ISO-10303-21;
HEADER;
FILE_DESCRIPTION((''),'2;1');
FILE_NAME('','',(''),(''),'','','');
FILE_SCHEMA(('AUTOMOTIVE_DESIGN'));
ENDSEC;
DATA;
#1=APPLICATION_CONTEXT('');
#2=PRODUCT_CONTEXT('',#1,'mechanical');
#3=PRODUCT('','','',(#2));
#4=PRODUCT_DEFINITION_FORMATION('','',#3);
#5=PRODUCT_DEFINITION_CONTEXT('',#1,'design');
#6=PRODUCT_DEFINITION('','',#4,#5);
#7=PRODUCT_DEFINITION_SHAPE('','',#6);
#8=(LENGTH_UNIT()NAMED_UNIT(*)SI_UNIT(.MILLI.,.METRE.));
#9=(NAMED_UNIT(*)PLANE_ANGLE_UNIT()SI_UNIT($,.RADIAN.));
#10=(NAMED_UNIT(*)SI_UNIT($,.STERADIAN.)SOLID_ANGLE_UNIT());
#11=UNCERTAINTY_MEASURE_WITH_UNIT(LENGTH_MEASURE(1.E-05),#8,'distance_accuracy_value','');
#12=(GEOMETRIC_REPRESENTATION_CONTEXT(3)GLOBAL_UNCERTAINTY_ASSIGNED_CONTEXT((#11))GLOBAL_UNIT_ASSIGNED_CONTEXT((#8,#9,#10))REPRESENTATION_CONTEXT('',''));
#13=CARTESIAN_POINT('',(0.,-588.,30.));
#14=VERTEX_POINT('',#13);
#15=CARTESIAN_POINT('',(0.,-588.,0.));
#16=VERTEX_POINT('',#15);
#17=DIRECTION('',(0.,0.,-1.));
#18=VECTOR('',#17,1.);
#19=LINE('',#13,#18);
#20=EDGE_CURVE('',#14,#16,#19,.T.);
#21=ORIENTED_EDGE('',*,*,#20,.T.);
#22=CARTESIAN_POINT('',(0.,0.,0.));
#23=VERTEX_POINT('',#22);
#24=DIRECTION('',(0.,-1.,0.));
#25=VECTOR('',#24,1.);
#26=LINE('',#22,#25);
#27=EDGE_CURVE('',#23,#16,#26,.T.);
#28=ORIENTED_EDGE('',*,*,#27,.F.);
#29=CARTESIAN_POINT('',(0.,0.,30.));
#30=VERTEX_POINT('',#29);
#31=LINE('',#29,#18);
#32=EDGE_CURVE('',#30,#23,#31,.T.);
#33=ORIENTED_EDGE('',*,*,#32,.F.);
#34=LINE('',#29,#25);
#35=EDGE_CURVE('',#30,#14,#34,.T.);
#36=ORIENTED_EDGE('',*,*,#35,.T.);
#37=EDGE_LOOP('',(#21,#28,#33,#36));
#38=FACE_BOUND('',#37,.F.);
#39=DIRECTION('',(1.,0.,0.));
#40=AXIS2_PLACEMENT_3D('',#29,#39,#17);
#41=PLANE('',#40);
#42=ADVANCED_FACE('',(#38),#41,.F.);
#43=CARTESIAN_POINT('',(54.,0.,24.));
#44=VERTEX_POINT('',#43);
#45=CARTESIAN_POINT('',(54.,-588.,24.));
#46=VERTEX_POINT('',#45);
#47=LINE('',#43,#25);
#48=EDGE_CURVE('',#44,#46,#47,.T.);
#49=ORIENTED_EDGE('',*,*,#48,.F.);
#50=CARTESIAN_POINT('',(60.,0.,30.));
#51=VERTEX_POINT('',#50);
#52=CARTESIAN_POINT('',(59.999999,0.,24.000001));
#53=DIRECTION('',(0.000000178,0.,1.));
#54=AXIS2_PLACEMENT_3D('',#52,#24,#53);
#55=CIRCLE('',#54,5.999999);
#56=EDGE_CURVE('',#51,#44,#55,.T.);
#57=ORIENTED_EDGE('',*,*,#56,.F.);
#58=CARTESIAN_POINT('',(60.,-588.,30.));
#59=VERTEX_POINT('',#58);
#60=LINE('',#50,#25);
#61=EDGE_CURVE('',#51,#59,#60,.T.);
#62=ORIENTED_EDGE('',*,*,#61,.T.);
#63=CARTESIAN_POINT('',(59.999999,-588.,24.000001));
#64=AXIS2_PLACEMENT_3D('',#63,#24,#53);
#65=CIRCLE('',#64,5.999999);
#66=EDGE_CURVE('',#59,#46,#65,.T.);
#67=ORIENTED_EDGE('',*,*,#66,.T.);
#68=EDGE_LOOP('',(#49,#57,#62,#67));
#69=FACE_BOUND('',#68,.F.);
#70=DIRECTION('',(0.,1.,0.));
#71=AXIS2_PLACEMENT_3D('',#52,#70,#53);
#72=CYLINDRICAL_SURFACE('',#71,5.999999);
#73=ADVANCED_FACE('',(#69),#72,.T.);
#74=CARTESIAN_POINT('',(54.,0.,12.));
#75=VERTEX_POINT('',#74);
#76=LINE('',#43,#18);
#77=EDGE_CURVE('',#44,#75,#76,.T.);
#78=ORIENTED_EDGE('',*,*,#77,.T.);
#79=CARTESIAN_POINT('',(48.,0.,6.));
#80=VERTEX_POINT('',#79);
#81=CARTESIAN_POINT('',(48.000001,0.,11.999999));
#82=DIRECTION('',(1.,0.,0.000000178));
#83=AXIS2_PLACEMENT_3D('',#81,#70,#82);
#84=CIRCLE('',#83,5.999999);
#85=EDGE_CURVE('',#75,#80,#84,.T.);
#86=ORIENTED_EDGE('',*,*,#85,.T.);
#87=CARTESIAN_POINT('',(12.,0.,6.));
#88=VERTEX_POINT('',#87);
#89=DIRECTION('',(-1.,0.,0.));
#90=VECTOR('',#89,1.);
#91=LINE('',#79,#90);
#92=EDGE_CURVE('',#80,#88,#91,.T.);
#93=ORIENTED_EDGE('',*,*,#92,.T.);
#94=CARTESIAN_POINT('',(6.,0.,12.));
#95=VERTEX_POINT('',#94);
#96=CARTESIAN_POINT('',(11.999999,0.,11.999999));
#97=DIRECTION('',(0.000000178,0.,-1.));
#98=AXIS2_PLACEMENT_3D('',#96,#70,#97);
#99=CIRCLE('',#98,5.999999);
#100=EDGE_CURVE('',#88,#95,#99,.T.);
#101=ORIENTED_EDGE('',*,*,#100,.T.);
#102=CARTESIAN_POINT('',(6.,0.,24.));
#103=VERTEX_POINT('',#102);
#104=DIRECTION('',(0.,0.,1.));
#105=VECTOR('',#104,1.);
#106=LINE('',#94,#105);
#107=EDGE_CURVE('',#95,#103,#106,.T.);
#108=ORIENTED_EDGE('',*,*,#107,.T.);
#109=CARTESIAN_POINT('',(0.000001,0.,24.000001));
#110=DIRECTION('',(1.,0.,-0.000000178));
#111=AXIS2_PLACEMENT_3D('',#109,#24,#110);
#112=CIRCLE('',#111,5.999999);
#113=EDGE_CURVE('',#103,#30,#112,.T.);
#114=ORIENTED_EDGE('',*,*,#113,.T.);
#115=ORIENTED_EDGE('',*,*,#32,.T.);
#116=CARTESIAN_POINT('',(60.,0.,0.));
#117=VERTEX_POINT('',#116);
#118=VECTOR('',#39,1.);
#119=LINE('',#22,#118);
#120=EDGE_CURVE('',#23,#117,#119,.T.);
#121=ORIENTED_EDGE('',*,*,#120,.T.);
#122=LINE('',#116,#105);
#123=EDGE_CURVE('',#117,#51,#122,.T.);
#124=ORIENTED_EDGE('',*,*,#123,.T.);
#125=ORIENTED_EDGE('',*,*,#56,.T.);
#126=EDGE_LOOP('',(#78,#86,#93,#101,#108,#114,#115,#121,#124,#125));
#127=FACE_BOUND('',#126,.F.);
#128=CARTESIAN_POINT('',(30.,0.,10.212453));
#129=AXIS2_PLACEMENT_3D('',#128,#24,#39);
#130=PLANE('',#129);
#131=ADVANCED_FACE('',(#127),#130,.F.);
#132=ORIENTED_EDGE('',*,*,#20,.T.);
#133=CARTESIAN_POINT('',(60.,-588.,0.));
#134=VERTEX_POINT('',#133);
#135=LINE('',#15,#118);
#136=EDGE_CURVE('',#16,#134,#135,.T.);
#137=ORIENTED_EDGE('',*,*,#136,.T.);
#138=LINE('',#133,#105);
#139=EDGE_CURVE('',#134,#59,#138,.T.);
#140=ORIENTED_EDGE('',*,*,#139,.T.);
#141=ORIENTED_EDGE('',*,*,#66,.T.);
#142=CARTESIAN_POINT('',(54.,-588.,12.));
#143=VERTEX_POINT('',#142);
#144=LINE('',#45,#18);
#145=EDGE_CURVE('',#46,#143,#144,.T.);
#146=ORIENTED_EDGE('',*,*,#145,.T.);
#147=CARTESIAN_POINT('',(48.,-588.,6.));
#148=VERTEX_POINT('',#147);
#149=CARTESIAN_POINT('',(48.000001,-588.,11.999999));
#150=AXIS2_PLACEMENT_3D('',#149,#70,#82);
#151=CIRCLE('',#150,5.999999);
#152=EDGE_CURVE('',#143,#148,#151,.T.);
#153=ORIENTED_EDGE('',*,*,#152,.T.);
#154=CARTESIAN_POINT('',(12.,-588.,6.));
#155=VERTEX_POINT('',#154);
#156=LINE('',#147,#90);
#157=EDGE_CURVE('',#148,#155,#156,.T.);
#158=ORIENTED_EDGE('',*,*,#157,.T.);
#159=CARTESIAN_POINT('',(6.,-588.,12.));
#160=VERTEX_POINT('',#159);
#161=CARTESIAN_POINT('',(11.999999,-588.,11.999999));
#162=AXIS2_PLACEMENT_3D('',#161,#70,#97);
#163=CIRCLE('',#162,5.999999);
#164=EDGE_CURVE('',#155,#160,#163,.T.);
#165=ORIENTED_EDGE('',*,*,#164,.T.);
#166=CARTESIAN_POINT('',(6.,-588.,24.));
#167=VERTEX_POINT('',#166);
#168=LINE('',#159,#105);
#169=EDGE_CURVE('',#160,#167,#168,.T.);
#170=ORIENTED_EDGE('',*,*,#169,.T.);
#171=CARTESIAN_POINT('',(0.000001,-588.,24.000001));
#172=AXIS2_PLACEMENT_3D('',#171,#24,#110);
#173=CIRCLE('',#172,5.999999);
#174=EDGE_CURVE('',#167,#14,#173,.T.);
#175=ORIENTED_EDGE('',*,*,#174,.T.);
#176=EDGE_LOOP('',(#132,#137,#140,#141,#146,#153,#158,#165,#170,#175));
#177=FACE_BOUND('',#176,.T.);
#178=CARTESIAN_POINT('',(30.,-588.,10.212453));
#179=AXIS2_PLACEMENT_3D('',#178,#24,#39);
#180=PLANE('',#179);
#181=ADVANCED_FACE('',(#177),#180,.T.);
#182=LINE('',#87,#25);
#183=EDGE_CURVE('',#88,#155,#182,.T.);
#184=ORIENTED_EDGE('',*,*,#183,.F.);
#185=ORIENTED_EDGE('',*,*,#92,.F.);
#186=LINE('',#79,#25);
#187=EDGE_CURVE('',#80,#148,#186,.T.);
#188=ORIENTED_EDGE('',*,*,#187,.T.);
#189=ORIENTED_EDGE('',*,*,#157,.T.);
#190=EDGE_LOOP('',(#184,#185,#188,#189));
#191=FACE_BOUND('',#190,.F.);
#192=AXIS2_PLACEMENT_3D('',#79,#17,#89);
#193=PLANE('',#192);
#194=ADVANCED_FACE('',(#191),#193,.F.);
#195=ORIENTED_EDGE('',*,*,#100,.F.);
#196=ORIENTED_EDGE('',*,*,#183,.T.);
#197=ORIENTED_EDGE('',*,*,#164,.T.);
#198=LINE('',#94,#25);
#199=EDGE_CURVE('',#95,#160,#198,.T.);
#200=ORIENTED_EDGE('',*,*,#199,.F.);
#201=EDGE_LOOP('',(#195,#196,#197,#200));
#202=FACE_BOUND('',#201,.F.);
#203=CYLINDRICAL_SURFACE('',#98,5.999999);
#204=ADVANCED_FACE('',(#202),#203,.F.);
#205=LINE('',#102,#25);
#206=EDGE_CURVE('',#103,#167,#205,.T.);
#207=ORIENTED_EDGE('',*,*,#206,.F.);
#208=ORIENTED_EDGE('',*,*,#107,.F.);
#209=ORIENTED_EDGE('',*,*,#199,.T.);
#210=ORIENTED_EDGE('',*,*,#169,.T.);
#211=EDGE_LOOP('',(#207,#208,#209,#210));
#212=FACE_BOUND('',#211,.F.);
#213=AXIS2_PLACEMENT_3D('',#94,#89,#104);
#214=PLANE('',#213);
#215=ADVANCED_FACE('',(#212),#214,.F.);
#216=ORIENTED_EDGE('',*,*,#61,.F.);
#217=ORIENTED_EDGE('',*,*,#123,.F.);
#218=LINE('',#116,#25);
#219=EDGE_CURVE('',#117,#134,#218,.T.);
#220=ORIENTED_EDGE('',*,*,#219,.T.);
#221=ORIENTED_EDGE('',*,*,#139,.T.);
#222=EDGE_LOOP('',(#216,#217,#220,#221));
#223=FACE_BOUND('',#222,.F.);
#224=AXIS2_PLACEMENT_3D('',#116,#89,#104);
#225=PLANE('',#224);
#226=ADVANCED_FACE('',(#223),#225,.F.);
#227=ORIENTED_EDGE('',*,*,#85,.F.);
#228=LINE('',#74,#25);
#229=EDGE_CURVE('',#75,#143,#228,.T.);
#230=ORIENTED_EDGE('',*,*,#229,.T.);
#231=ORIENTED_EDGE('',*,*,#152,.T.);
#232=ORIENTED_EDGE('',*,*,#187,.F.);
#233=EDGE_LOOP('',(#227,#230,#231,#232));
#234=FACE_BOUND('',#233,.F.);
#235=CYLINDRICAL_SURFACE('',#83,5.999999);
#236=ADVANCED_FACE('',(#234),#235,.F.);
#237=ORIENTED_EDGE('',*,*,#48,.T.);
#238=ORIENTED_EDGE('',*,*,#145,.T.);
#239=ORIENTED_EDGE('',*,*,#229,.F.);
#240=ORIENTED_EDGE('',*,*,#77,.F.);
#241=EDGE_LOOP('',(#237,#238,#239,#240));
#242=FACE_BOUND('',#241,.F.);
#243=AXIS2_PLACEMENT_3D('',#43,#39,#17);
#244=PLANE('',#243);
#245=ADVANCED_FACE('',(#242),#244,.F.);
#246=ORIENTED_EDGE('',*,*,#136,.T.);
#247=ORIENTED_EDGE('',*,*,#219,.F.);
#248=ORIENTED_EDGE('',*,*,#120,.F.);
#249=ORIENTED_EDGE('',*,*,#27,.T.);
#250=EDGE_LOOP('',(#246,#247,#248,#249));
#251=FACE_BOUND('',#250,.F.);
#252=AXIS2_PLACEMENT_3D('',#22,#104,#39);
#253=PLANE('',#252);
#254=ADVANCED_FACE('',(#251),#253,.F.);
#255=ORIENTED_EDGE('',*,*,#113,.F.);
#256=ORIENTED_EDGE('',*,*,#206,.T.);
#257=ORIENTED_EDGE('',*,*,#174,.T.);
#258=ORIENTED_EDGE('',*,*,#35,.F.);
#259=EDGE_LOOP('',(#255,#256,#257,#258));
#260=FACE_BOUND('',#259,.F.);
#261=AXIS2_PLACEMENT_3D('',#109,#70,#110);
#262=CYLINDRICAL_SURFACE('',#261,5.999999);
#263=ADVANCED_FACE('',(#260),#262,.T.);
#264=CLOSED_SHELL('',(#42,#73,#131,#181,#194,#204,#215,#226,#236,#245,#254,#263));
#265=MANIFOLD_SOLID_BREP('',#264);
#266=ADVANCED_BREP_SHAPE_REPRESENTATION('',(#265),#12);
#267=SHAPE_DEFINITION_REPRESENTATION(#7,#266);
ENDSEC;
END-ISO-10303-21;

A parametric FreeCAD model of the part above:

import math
import FreeCAD as App
import Part
import Sketcher
Q = App.Units.Quantity

doc = App.newDocument("Part")
params = doc.addObject("Spreadsheet::Sheet", "Params")
for row, (alias, value) in enumerate([
    ("sketch1_radius", "5.999999 mm"),
    ("sketch1_width", "60 mm"),
    ("sketch1_height", "30 mm"),
    ("sketch1_height2", "12 mm"),
    ("pad1_length", "588 mm"),
], start=1):
    params.set(f"A{row}", alias)
    params.set(f"B{row}", "=" + value)
    params.setAlias(f"B{row}", alias)

body = doc.addObject("PartDesign::Body", "Body")

sketch1 = body.newObject("Sketcher::SketchObject", "Sketch")
sketch1.AttachmentSupport = (doc.getObject("XZ_Plane"), [""])
sketch1.MapMode = "FlatFace"
sketch1.addGeometry([
    Part.LineSegment(App.Vector(0, 30, 0), App.Vector(0, 0, 0)),
    Part.LineSegment(App.Vector(0, 0, 0), App.Vector(60, 0, 0)),
    Part.LineSegment(App.Vector(60, 0, 0), App.Vector(60, 30, 0)),
    Part.ArcOfCircle(Part.Circle(App.Vector(60, 24, 0), App.Vector(0, 0, 1), 6), math.radians(90), math.radians(180)),
    Part.LineSegment(App.Vector(54, 24, 0), App.Vector(54, 12, 0)),
    Part.ArcOfCircle(Part.Circle(App.Vector(48, 12, 0), App.Vector(0, 0, 1), 6), math.radians(-90), math.radians(0)),
    Part.LineSegment(App.Vector(48, 6, 0), App.Vector(12, 6, 0)),
    Part.ArcOfCircle(Part.Circle(App.Vector(12, 12, 0), App.Vector(0, 0, 1), 6), math.radians(180), math.radians(270)),
    Part.LineSegment(App.Vector(6, 12, 0), App.Vector(6, 24, 0)),
    Part.ArcOfCircle(Part.Circle(App.Vector(0, 24, 0), App.Vector(0, 0, 1), 6), math.radians(0), math.radians(90)),
], False)
sketch1.addConstraint([
    Sketcher.Constraint("Coincident", 0, 2, 1, 1),
    Sketcher.Constraint("Coincident", 1, 2, 2, 1),
    Sketcher.Constraint("Coincident", 2, 2, 3, 1),
    Sketcher.Constraint("Tangent", 3, 2, 4, 1),
    Sketcher.Constraint("Tangent", 4, 2, 5, 2),
    Sketcher.Constraint("Tangent", 5, 1, 6, 1),
    Sketcher.Constraint("Tangent", 6, 2, 7, 2),
    Sketcher.Constraint("Tangent", 7, 1, 8, 1),
    Sketcher.Constraint("Tangent", 8, 2, 9, 1),
    Sketcher.Constraint("Coincident", 9, 2, 0, 1),
    Sketcher.Constraint("Vertical", 0),
    Sketcher.Constraint("Horizontal", 1),
    Sketcher.Constraint("Vertical", 2),
    Sketcher.Constraint("Vertical", 4),
    Sketcher.Constraint("Horizontal", 6),
    Sketcher.Constraint("Vertical", 8),
    Sketcher.Constraint("Coincident", 0, 2, -1, 1),
    Sketcher.Constraint("Equal", 3, 5),
    Sketcher.Constraint("Equal", 5, 7),
    Sketcher.Constraint("Equal", 7, 9),
    Sketcher.Constraint("PointOnObject", 9, 3, -2),
    Sketcher.Constraint("Horizontal", 3, 3, 9, 3),
    Sketcher.Constraint("Vertical", 3, 3, 1, 2),
    Sketcher.Constraint("Radius", 3, Q("5.999999 mm")),
    Sketcher.Constraint("DistanceX", 1, 1, 1, 2, Q("60 mm")),
    Sketcher.Constraint("DistanceY", 0, 2, 0, 1, Q("30 mm")),
    Sketcher.Constraint("DistanceY", 4, 2, 4, 1, Q("12 mm")),
])
sketch1.setExpression("Constraints[23]", "Params.sketch1_radius")
sketch1.setExpression("Constraints[24]", "Params.sketch1_width")
sketch1.setExpression("Constraints[25]", "Params.sketch1_height")
sketch1.setExpression("Constraints[26]", "Params.sketch1_height2")
pad1 = body.newObject("PartDesign::Pad", "Pad")
pad1.Profile = sketch1
pad1.setExpression("Length", "Params.pad1_length")

doc.recompute()
